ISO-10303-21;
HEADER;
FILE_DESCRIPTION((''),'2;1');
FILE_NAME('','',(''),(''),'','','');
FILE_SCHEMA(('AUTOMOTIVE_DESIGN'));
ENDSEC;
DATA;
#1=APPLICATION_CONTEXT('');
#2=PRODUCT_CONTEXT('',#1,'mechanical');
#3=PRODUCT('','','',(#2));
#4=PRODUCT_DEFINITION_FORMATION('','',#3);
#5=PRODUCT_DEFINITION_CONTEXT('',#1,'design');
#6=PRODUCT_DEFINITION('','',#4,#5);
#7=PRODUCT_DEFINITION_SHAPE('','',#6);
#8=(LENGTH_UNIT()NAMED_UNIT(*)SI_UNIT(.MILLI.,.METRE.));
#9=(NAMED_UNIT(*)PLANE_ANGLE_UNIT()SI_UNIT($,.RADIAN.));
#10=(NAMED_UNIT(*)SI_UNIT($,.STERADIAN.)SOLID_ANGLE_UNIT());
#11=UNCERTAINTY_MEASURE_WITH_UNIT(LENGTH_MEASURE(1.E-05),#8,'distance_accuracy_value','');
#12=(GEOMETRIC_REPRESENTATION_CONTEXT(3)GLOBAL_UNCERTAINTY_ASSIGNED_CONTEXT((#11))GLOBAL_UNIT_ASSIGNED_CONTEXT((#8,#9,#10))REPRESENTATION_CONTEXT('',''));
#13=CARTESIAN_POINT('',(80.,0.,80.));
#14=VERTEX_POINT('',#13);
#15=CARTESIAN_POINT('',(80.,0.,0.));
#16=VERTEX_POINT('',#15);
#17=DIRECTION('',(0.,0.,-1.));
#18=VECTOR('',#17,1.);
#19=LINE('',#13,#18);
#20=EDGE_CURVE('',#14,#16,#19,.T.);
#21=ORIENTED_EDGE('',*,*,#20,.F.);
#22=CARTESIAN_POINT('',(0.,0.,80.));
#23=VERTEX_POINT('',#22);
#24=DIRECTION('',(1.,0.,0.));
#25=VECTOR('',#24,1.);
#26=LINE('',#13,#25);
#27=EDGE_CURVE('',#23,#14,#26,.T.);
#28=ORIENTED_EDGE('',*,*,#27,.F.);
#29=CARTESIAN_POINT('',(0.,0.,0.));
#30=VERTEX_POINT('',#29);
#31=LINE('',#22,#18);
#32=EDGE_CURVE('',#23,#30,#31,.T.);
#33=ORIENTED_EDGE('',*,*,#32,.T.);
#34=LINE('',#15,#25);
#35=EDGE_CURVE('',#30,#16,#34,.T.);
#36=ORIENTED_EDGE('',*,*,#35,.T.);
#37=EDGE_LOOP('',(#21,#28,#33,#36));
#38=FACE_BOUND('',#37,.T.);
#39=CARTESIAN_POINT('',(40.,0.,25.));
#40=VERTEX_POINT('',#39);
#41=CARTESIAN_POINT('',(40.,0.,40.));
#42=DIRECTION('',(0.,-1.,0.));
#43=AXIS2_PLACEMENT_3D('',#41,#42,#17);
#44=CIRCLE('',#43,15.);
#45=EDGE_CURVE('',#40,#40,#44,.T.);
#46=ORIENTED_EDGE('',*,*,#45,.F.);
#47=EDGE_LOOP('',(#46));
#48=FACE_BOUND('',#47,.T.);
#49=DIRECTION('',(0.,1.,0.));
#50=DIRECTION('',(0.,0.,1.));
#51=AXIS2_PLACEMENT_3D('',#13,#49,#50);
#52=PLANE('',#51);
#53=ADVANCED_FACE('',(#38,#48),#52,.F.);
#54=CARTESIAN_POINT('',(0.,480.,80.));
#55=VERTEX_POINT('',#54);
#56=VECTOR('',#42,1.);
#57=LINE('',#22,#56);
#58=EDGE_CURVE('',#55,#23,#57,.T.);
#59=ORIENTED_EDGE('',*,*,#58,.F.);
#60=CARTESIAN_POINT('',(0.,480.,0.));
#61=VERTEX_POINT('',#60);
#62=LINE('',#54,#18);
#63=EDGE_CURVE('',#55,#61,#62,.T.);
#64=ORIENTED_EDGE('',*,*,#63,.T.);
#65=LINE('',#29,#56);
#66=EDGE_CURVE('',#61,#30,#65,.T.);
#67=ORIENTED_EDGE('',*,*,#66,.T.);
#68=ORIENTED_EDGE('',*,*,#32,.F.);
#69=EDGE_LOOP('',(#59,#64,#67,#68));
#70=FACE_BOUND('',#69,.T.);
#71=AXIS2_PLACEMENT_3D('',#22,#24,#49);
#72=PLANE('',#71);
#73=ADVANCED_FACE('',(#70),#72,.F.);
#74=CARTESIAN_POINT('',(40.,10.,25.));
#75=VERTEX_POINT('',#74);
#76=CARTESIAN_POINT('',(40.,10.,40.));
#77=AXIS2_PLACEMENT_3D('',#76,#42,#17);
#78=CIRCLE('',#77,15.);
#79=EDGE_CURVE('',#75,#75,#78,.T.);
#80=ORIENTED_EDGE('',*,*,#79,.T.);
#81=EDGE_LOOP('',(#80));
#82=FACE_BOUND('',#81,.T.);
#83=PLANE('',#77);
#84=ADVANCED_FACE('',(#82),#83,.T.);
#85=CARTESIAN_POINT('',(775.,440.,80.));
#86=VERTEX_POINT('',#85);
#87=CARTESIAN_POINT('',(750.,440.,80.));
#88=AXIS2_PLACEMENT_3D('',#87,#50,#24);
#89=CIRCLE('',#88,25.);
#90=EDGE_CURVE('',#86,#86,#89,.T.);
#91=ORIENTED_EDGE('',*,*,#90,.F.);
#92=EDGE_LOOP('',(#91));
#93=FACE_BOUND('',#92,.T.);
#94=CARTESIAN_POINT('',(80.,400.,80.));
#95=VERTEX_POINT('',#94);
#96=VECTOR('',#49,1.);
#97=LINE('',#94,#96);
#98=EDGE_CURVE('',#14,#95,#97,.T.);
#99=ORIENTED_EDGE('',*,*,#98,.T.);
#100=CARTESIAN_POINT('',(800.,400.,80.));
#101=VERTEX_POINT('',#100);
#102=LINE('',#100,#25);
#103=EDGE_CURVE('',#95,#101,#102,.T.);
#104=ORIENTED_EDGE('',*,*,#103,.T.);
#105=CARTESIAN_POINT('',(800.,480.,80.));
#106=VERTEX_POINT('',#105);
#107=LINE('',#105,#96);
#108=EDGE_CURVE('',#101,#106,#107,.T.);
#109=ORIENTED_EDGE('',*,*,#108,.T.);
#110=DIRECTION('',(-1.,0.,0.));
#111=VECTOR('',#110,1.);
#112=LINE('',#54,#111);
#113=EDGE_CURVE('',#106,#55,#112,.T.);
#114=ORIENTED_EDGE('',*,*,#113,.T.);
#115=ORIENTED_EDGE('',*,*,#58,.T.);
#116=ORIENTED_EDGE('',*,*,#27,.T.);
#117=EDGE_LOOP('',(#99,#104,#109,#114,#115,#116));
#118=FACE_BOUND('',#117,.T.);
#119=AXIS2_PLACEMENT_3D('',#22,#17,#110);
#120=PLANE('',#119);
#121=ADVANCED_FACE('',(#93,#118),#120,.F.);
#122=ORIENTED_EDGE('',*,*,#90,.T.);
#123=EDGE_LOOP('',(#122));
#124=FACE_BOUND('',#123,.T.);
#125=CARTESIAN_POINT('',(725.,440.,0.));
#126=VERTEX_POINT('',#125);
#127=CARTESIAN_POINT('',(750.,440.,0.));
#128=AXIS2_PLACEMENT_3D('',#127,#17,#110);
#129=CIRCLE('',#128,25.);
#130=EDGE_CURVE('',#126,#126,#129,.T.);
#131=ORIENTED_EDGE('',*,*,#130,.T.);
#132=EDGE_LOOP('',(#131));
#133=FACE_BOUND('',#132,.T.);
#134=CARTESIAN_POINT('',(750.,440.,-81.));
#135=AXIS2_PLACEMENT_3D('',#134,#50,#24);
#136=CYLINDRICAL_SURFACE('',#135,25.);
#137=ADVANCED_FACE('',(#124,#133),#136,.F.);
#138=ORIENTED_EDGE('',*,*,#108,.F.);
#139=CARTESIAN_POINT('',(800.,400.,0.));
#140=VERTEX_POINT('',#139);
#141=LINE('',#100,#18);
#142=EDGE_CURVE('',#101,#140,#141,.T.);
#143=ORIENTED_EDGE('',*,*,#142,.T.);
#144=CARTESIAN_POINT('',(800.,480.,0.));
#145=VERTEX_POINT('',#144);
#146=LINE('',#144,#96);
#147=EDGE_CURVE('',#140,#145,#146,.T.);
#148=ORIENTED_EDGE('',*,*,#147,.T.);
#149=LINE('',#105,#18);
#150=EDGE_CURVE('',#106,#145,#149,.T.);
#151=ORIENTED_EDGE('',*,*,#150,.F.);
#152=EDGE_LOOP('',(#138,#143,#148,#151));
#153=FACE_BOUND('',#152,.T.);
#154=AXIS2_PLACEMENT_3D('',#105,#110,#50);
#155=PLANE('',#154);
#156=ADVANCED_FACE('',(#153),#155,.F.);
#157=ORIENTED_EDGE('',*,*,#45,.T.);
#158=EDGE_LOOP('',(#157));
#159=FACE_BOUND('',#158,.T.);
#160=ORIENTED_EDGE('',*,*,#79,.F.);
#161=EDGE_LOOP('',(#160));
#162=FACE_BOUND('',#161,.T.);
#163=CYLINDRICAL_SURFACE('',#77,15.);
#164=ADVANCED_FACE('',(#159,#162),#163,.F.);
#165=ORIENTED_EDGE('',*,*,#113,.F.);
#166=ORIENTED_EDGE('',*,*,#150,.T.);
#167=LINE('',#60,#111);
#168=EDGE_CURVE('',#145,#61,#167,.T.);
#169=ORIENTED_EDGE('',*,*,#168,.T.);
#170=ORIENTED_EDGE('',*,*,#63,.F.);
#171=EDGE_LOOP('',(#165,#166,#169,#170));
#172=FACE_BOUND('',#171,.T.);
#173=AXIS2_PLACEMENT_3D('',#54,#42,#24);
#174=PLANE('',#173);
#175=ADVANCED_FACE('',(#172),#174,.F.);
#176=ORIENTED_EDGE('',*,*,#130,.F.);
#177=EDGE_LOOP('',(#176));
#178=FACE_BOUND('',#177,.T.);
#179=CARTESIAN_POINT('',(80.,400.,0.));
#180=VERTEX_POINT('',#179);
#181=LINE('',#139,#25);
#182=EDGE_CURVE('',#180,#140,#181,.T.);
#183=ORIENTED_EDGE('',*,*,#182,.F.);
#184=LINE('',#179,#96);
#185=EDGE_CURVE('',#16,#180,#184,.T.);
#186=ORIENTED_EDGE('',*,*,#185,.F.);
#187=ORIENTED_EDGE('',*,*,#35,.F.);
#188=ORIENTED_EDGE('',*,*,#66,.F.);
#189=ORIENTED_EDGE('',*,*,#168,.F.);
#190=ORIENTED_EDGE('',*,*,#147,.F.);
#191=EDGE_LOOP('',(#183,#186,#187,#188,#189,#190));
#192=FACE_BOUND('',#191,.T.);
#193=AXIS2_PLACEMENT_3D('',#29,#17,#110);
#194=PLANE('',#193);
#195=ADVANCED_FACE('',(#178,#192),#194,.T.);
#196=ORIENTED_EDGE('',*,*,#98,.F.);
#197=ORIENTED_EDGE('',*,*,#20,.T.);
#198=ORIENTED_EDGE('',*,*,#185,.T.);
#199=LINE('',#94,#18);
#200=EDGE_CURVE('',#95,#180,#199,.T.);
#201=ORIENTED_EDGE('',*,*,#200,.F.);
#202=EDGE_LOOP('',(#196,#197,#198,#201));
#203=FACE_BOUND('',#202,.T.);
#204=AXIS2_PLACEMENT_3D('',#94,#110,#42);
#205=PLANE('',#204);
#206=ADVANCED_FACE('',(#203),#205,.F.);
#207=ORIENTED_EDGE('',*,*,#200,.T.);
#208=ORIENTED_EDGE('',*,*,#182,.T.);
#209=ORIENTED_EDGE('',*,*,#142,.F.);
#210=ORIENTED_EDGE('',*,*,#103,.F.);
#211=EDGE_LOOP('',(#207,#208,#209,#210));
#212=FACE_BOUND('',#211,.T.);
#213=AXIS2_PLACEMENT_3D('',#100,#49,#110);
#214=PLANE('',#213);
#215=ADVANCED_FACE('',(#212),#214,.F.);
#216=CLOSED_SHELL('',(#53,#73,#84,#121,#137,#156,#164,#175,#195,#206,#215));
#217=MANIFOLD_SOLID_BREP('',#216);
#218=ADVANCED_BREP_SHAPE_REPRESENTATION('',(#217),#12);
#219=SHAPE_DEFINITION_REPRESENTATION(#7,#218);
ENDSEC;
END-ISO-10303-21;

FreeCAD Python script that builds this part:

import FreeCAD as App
import Part
import Sketcher

V = App.Vector
Q = App.Units.Quantity

doc = App.newDocument("Part")
body = doc.addObject("PartDesign::Body", "Body")

sketch1 = doc.addObject("Sketcher::SketchObject", "Sketch")
body.addObject(sketch1)
sketch1.AttachmentSupport = (doc.XY_Plane, [""])
sketch1.MapMode = "FlatFace"
sketch1.addGeometry([
    Part.LineSegment(V(0, 480, 0), V(0, 0, 0)),
    Part.LineSegment(V(0, 0, 0), V(80, 0, 0)),
    Part.LineSegment(V(80, 0, 0), V(80, 400, 0)),
    Part.LineSegment(V(80, 400, 0), V(800, 400, 0)),
    Part.LineSegment(V(800, 400, 0), V(800, 480, 0)),
    Part.LineSegment(V(800, 480, 0), V(0, 480, 0)),
], False)
sketch1.addConstraint([
    Sketcher.Constraint("Coincident", 0, 2, 1, 1),
    Sketcher.Constraint("Coincident", 1, 2, 2, 1),
    Sketcher.Constraint("Coincident", 2, 2, 3, 1),
    Sketcher.Constraint("Coincident", 3, 2, 4, 1),
    Sketcher.Constraint("Coincident", 4, 2, 5, 1),
    Sketcher.Constraint("Coincident", 5, 2, 0, 1),
    Sketcher.Constraint("Vertical", 0),
    Sketcher.Constraint("Horizontal", 1),
    Sketcher.Constraint("Vertical", 2),
    Sketcher.Constraint("Horizontal", 3),
    Sketcher.Constraint("Vertical", 4),
    Sketcher.Constraint("Horizontal", 5),
    Sketcher.Constraint("Coincident", 0, 2, -1, 1),
    Sketcher.Constraint("Equal", 1, 4),
    Sketcher.Constraint("DistanceX", 1, 1, 1, 2, Q("80 mm")),
    Sketcher.Constraint("DistanceX", 3, 1, 3, 2, Q("720 mm")),
    Sketcher.Constraint("DistanceY", 0, 2, 0, 1, Q("480 mm")),
])
pad1 = doc.addObject("PartDesign::Pad", "Pad")
body.addObject(pad1)
pad1.Profile = sketch1
pad1.Length = 80

sketch2 = doc.addObject("Sketcher::SketchObject", "Sketch001")
body.addObject(sketch2)
sketch2.AttachmentSupport = (doc.XY_Plane, [""])
sketch2.MapMode = "FlatFace"
sketch2.AttachmentOffset = App.Placement(V(0, 0, 80), App.Rotation())
sketch2.addGeometry(Part.Circle(V(750, 440, 0), V(0, 0, 1), 25), False)
sketch2.addConstraint([
    Sketcher.Constraint("Diameter", 0, Q("50 mm")),
    Sketcher.Constraint("DistanceX", -1, 1, 0, 3, Q("750 mm")),
    Sketcher.Constraint("DistanceY", -1, 1, 0, 3, Q("440 mm")),
])
pocket1 = doc.addObject("PartDesign::Pocket", "Pocket")
body.addObject(pocket1)
pocket1.Profile = sketch2
pocket1.Length = 161

sketch3 = doc.addObject("Sketcher::SketchObject", "Sketch002")
body.addObject(sketch3)
sketch3.AttachmentSupport = (doc.XZ_Plane, [""])
sketch3.MapMode = "FlatFace"
sketch3.addGeometry(Part.Circle(V(40, 40, 0), V(0, 0, 1), 15), False)
sketch3.addConstraint([
    Sketcher.Constraint("Diameter", 0, Q("30 mm")),
    Sketcher.Constraint("DistanceX", -1, 1, 0, 3, Q("40 mm")),
    Sketcher.Constraint("DistanceY", -1, 1, 0, 3, Q("40 mm")),
])
pocket2 = doc.addObject("PartDesign::Pocket", "Pocket001")
body.addObject(pocket2)
pocket2.Profile = sketch3
pocket2.Length = 10

doc.recompute()
